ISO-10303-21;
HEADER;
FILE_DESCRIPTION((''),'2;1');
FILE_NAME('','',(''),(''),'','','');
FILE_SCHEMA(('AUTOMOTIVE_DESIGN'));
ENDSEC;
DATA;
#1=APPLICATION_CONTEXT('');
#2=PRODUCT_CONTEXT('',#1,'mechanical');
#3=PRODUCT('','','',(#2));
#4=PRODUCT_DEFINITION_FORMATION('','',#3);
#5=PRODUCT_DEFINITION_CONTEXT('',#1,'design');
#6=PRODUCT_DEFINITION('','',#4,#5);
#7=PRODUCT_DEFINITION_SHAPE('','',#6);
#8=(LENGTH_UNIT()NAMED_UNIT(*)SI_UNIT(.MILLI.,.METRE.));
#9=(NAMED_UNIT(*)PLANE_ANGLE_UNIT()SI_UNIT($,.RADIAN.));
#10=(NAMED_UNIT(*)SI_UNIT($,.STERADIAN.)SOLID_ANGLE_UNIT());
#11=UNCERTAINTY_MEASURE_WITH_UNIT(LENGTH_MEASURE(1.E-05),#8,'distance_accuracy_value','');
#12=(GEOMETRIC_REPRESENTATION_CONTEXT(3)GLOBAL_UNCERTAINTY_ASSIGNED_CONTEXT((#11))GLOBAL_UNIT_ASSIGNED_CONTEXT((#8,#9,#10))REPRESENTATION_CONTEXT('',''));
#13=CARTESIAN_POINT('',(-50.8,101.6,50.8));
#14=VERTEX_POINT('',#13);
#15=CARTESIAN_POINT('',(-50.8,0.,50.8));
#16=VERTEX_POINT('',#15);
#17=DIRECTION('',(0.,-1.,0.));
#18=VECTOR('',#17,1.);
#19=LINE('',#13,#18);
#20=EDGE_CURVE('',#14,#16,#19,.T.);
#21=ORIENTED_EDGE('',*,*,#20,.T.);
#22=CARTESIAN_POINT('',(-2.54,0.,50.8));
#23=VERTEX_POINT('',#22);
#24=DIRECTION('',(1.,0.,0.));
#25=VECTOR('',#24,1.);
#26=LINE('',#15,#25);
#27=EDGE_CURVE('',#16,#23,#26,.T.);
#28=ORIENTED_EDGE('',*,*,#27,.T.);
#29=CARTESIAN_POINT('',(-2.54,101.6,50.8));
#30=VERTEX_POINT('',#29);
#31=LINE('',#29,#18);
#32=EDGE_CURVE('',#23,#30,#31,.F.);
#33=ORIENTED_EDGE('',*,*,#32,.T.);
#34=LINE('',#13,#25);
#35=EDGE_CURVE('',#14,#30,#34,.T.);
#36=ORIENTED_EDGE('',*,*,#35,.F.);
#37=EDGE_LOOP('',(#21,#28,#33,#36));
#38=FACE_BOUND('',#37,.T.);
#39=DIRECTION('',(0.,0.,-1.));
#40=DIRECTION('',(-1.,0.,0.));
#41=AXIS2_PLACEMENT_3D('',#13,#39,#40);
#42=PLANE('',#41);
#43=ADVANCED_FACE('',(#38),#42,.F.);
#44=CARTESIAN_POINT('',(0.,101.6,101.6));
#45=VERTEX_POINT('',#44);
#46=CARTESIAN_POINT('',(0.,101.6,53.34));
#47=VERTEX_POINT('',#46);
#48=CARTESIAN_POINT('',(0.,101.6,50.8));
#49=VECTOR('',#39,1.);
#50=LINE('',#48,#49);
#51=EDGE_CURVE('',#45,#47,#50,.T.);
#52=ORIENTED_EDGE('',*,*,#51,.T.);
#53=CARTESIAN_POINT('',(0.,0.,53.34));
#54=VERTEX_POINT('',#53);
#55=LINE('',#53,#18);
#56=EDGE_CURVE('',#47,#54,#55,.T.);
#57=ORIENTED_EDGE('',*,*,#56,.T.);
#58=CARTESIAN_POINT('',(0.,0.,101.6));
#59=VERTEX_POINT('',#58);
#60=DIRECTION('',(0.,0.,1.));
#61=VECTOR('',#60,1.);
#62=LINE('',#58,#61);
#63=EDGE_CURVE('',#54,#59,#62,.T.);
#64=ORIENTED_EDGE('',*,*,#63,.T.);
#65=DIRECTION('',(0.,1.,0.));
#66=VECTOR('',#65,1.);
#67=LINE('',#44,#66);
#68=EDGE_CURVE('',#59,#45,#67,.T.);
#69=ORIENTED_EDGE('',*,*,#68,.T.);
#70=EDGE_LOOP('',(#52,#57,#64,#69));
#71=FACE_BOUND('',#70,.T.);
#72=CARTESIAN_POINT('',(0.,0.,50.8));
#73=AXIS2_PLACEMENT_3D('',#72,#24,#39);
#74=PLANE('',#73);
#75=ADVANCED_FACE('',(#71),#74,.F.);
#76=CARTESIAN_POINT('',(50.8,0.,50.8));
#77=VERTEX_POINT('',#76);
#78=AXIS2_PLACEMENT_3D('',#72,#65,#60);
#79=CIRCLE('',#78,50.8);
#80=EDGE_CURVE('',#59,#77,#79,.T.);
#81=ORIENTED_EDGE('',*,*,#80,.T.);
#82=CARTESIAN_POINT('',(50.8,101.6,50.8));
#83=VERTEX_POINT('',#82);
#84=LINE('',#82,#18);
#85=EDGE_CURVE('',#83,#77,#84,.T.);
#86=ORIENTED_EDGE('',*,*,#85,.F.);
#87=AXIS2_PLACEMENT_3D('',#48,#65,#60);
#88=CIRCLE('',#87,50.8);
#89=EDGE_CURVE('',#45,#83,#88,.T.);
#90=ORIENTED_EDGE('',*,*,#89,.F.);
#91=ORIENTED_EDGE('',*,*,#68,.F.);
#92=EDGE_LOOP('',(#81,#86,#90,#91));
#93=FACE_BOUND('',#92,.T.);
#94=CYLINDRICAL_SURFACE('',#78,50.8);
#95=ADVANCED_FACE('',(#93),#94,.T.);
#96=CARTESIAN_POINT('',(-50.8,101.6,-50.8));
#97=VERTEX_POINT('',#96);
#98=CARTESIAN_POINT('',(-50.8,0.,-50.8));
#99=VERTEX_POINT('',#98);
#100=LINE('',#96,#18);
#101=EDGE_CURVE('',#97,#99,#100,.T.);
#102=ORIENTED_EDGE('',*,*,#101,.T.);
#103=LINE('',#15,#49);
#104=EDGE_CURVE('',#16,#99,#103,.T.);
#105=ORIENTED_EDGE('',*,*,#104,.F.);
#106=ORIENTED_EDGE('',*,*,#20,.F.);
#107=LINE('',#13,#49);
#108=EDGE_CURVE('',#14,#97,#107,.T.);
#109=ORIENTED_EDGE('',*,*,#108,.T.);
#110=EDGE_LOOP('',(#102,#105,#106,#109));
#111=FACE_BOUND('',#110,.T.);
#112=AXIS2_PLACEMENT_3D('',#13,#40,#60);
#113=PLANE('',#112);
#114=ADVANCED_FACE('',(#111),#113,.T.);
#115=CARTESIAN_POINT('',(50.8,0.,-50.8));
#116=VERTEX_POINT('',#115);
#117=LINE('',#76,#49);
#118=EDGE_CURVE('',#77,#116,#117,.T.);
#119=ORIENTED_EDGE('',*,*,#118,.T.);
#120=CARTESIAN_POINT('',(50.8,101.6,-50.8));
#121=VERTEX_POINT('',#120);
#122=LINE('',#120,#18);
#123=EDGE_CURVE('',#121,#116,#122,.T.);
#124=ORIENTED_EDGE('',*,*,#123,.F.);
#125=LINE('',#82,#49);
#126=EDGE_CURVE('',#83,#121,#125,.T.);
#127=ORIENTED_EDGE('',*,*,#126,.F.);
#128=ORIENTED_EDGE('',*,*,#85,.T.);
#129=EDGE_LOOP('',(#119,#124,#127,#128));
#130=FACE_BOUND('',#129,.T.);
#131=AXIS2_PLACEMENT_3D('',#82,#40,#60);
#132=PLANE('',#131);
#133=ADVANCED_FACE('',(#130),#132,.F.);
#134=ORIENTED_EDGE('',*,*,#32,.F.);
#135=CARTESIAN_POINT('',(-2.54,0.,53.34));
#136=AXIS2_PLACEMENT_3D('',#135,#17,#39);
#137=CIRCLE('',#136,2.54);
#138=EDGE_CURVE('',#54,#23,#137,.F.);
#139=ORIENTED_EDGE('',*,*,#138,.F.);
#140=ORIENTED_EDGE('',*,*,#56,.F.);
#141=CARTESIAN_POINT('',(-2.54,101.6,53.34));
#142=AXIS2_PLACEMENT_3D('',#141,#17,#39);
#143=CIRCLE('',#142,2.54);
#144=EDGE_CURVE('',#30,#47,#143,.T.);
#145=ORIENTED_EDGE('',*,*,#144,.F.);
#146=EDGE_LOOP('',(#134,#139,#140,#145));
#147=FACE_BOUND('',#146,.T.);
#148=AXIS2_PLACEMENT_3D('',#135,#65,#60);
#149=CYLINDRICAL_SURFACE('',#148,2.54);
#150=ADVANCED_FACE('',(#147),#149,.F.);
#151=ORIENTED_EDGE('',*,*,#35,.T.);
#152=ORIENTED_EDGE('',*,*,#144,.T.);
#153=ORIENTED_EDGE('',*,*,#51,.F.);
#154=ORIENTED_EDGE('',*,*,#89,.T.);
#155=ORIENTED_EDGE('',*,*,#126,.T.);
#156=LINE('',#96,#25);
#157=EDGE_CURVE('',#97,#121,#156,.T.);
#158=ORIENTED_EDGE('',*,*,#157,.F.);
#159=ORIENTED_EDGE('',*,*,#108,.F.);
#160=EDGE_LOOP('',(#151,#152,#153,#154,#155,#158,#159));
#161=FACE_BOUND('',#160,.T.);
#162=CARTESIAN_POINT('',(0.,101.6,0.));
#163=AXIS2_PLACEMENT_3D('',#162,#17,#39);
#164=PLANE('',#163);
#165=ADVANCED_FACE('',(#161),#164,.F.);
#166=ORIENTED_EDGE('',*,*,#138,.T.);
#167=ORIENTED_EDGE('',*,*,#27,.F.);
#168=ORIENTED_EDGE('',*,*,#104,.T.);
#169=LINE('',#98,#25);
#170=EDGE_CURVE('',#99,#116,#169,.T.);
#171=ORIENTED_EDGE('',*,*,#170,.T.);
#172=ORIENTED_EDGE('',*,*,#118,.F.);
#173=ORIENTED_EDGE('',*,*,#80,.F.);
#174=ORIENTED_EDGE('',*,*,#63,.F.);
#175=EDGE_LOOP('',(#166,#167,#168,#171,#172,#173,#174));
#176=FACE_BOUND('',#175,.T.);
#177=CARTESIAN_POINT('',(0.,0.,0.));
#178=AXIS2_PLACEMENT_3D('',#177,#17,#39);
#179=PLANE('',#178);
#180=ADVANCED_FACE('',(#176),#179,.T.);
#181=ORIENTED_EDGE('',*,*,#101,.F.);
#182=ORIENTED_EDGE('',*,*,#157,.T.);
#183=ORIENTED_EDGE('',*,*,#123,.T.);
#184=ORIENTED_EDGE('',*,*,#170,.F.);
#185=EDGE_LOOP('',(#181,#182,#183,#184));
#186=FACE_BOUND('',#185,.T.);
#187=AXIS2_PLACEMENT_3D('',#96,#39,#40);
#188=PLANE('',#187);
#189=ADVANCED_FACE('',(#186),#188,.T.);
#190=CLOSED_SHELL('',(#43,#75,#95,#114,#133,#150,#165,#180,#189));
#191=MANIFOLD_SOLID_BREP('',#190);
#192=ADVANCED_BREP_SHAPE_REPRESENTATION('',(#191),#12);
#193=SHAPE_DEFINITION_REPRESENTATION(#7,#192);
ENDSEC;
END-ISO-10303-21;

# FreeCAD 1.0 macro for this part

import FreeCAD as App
import Part
import Sketcher

V = App.Vector
Q = App.Units.Quantity


def edges_at(feature, points):
    """Names of the edges that pass closest to the given points."""
    edges = feature.Shape.Edges
    near = lambda p: min(range(len(edges)), key=lambda i: edges[i].distToShape(Part.Vertex(*p))[0])
    return sorted({f"Edge{near(p) + 1}" for p in points})


def add_polygon(sketch, points):
    """Adds a closed chain of lines whose ends are joined by coincident constraints."""
    first, n = sketch.GeometryCount, len(points)
    for a, b in zip(points, points[1:] + points[:1]):
        sketch.addGeometry(Part.LineSegment(App.Vector(*a, 0), App.Vector(*b, 0)), False)
    for i in range(n):
        sketch.addConstraint(Sketcher.Constraint("Coincident", first + i, 2, first + (i + 1) % n, 1))

doc = App.newDocument("Part")
body = doc.addObject("PartDesign::Body", "Body")

sketch1 = body.newObject("Sketcher::SketchObject", "Sketch")
sketch1.AttachmentSupport = (doc.getObject("XZ_Plane"), [""])
sketch1.MapMode = "FlatFace"
add_polygon(sketch1, [(-51, -51), (-51, 51), (51, 51), (51, -51)])
sketch1.addConstraint(Sketcher.Constraint("Vertical", 0))
sketch1.addConstraint(Sketcher.Constraint("Horizontal", 1))
sketch1.addConstraint(Sketcher.Constraint("Vertical", 2))
sketch1.addConstraint(Sketcher.Constraint("Horizontal", 3))
sketch1.addConstraint(Sketcher.Constraint("Symmetric", 0, 2, 2, 2, -1, 1))
sketch1.addConstraint(Sketcher.Constraint("Equal", 3, 0))
sketch1.addConstraint(Sketcher.Constraint("DistanceX", 1, 1, 1, 2, Q("4 in")))
pad1 = body.newObject("PartDesign::Pad", "Pad")
pad1.Profile = sketch1
pad1.Length = Q("4 in")
pad1.Reversed = True

sketch2 = body.newObject("Sketcher::SketchObject", "Sketch001")
sketch2.AttachmentSupport = (doc.getObject("XY_Plane"), [""])
sketch2.MapMode = "FlatFace"
sketch2.AttachmentOffset = App.Placement(V(0, 0, 2 * 25.4), App.Rotation())
add_polygon(sketch2, [(0, 102), (0, 0), (51, 0), (51, 102)])
sketch2.addConstraint(Sketcher.Constraint("Vertical", 0))
sketch2.addConstraint(Sketcher.Constraint("Horizontal", 1))
sketch2.addConstraint(Sketcher.Constraint("Vertical", 2))
sketch2.addConstraint(Sketcher.Constraint("Horizontal", 3))
sketch2.addConstraint(Sketcher.Constraint("Coincident", 0, 2, -1, 1))
sketch2.addConstraint(Sketcher.Constraint("DistanceX", 1, 1, 1, 2, Q("2 in")))
sketch2.addConstraint(Sketcher.Constraint("DistanceY", 0, 2, 0, 1, Q("4 in")))
revolution = body.newObject("PartDesign::Revolution", "Revolution")
revolution.Profile = sketch2
revolution.ReferenceAxis = (sketch2, ["V_Axis"])
revolution.Angle = 90
revolution.Reversed = True
doc.recompute()

fillet = body.newObject("PartDesign::Fillet", "Fillet")
fillet.Base = (revolution, edges_at(revolution, [(0, 50.8, 50.8)]))
fillet.Radius = Q("0.1 in")

doc.recompute()
